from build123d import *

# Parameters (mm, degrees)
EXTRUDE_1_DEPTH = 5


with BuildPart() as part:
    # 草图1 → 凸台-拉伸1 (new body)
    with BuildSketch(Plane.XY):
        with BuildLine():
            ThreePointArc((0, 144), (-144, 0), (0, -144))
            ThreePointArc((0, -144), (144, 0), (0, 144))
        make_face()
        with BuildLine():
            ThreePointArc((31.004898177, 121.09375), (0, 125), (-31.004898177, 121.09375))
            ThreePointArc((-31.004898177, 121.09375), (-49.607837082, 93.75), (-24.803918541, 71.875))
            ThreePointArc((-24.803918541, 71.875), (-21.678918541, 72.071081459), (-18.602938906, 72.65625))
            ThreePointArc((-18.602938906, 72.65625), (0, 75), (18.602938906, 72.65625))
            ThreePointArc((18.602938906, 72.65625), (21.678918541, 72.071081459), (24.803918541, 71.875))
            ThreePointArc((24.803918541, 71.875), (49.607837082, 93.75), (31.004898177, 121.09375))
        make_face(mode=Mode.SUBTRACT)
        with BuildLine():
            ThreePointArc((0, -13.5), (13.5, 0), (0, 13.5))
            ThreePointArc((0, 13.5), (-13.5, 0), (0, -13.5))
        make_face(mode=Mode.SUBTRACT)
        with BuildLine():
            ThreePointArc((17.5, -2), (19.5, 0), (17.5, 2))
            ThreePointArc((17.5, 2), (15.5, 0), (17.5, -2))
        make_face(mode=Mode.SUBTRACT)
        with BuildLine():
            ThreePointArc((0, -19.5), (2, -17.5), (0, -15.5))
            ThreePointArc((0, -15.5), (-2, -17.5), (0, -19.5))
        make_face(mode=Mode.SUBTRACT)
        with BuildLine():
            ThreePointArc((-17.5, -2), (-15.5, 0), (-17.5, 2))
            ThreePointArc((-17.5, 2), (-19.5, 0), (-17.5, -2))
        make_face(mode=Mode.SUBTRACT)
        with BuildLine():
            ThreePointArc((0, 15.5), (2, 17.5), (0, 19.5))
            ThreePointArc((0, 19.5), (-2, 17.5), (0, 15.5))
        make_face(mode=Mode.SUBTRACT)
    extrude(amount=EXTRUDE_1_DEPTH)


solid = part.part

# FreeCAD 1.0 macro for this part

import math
import FreeCAD as App
import Part
import Sketcher
Q = App.Units.Quantity

doc = App.newDocument("Part")
params = doc.addObject("Spreadsheet::Sheet", "Params")
for row, (alias, value) in enumerate([
    ("sketch1_diameter", "288 mm"),
    ("sketch1_diameter2", "4 mm"),
    ("sketch1_diameter3", "27 mm"),
    ("sketch1_radius", "125 mm"),
    ("sketch1_radius2", "25 mm"),
    ("pad1_length", "5 mm"),
], start=1):
    params.set(f"A{row}", alias)
    params.set(f"B{row}", "=" + value)
    params.setAlias(f"B{row}", alias)

body = doc.addObject("PartDesign::Body", "Body")

sketch1 = body.newObject("Sketcher::SketchObject", "Sketch")
sketch1.AttachmentSupport = (doc.getObject("XY_Plane"), [""])
sketch1.MapMode = "FlatFace"
sketch1.addGeometry(Part.Circle(App.Vector(0, 0, 0), App.Vector(0, 0, 1), 144), False)
sketch1.addGeometry(Part.Circle(App.Vector(-17.5, 0, 0), App.Vector(0, 0, 1), 2), False)
sketch1.addGeometry(Part.Circle(App.Vector(0, -17.5, 0), App.Vector(0, 0, 1), 2), False)
sketch1.addGeometry(Part.Circle(App.Vector(0, 0, 0), App.Vector(0, 0, 1), 13.5), False)
sketch1.addGeometry(Part.Circle(App.Vector(17.5, 0, 0), App.Vector(0, 0, 1), 2), False)
sketch1.addGeometry(Part.Circle(App.Vector(0, 17.5, 0), App.Vector(0, 0, 1), 2), False)
sketch1.addGeometry(Part.ArcOfCircle(Part.Circle(App.Vector(0, 0, 0), App.Vector(0, 0, 1), 125), math.radians(76), math.radians(104)), False)
sketch1.addGeometry(Part.ArcOfCircle(Part.Circle(App.Vector(24.8, 96.9, 0), App.Vector(0, 0, 1), 25), math.radians(-90), math.radians(76)), False)
sketch1.addGeometry(Part.ArcOfCircle(Part.Circle(App.Vector(24.8, 96.9, 0), App.Vector(0, 0, 1), 25), math.radians(-104.36), math.radians(-90)), False)
sketch1.addGeometry(Part.ArcOfCircle(Part.Circle(App.Vector(0, 0, 0), App.Vector(0, 0, 1), 75), math.radians(76), math.radians(104)), False)
sketch1.addGeometry(Part.ArcOfCircle(Part.Circle(App.Vector(-24.8, 96.9, 0), App.Vector(0, 0, 1), 25), math.radians(-90), math.radians(-75.64)), False)
sketch1.addGeometry(Part.ArcOfCircle(Part.Circle(App.Vector(-24.8, 96.9, 0), App.Vector(0, 0, 1), 25), math.radians(104), math.radians(270)), False)
sketch1.addConstraint(Sketcher.Constraint("Tangent", 6, 1, 7, 2))
sketch1.addConstraint(Sketcher.Constraint("Tangent", 7, 1, 8, 2))
sketch1.addConstraint(Sketcher.Constraint("Tangent", 8, 1, 9, 1))
sketch1.addConstraint(Sketcher.Constraint("Tangent", 9, 2, 10, 2))
sketch1.addConstraint(Sketcher.Constraint("Tangent", 10, 1, 11, 2))
sketch1.addConstraint(Sketcher.Constraint("Tangent", 11, 1, 6, 2))
sketch1.addConstraint(Sketcher.Constraint("Coincident", 0, 3, -1, 1))
sketch1.addConstraint(Sketcher.Constraint("Coincident", 3, 3, -1, 1))
sketch1.addConstraint(Sketcher.Constraint("Coincident", 6, 3, -1, 1))
sketch1.addConstraint(Sketcher.Constraint("Coincident", 9, 3, -1, 1))
sketch1.addConstraint(Sketcher.Constraint("Equal", 1, 2))
sketch1.addConstraint(Sketcher.Constraint("Equal", 2, 4))
sketch1.addConstraint(Sketcher.Constraint("Equal", 4, 5))
sketch1.addConstraint(Sketcher.Constraint("Equal", 7, 8))
sketch1.addConstraint(Sketcher.Constraint("Equal", 8, 10))
sketch1.addConstraint(Sketcher.Constraint("Symmetric", 1, 3, 4, 3, -1, 1))
sketch1.addConstraint(Sketcher.Constraint("Symmetric", 2, 3, 5, 3, -1, 1))
sketch1.addConstraint(Sketcher.Constraint("Symmetric", 7, 1, 10, 1, -2))
sketch1.addConstraint(Sketcher.Constraint("PointOnObject", 1, 3, -1))
sketch1.addConstraint(Sketcher.Constraint("PointOnObject", 2, 3, -2))
sketch1.addConstraint(Sketcher.Constraint("Vertical", 8, 3, 7, 1))
sketch1.addConstraint(Sketcher.Constraint("Diameter", 0, Q("288 mm")))
sketch1.addConstraint(Sketcher.Constraint("Diameter", 1, Q("4 mm")))
sketch1.addConstraint(Sketcher.Constraint("Diameter", 3, Q("27 mm")))
sketch1.addConstraint(Sketcher.Constraint("Radius", 6, Q("125 mm")))
sketch1.addConstraint(Sketcher.Constraint("Radius", 7, Q("25 mm")))
sketch1.addConstraint(Sketcher.Constraint("DistanceX", 1, 3, 4, 3, Q("35 mm")))
sketch1.addConstraint(Sketcher.Constraint("DistanceY", 2, 3, 5, 3, Q("35 mm")))
sketch1.addConstraint(Sketcher.Constraint("DistanceY", -1, 1, 7, 3, Q("96.875 mm")))
sketch1.setExpression("Constraints[21]", "Params.sketch1_diameter")
sketch1.setExpression("Constraints[22]", "Params.sketch1_diameter2")
sketch1.setExpression("Constraints[23]", "Params.sketch1_diameter3")
sketch1.setExpression("Constraints[24]", "Params.sketch1_radius")
sketch1.setExpression("Constraints[25]", "Params.sketch1_radius2")
pad1 = body.newObject("PartDesign::Pad", "Pad")
pad1.Profile = sketch1
pad1.setExpression("Length", "Params.pad1_length")

doc.recompute()
